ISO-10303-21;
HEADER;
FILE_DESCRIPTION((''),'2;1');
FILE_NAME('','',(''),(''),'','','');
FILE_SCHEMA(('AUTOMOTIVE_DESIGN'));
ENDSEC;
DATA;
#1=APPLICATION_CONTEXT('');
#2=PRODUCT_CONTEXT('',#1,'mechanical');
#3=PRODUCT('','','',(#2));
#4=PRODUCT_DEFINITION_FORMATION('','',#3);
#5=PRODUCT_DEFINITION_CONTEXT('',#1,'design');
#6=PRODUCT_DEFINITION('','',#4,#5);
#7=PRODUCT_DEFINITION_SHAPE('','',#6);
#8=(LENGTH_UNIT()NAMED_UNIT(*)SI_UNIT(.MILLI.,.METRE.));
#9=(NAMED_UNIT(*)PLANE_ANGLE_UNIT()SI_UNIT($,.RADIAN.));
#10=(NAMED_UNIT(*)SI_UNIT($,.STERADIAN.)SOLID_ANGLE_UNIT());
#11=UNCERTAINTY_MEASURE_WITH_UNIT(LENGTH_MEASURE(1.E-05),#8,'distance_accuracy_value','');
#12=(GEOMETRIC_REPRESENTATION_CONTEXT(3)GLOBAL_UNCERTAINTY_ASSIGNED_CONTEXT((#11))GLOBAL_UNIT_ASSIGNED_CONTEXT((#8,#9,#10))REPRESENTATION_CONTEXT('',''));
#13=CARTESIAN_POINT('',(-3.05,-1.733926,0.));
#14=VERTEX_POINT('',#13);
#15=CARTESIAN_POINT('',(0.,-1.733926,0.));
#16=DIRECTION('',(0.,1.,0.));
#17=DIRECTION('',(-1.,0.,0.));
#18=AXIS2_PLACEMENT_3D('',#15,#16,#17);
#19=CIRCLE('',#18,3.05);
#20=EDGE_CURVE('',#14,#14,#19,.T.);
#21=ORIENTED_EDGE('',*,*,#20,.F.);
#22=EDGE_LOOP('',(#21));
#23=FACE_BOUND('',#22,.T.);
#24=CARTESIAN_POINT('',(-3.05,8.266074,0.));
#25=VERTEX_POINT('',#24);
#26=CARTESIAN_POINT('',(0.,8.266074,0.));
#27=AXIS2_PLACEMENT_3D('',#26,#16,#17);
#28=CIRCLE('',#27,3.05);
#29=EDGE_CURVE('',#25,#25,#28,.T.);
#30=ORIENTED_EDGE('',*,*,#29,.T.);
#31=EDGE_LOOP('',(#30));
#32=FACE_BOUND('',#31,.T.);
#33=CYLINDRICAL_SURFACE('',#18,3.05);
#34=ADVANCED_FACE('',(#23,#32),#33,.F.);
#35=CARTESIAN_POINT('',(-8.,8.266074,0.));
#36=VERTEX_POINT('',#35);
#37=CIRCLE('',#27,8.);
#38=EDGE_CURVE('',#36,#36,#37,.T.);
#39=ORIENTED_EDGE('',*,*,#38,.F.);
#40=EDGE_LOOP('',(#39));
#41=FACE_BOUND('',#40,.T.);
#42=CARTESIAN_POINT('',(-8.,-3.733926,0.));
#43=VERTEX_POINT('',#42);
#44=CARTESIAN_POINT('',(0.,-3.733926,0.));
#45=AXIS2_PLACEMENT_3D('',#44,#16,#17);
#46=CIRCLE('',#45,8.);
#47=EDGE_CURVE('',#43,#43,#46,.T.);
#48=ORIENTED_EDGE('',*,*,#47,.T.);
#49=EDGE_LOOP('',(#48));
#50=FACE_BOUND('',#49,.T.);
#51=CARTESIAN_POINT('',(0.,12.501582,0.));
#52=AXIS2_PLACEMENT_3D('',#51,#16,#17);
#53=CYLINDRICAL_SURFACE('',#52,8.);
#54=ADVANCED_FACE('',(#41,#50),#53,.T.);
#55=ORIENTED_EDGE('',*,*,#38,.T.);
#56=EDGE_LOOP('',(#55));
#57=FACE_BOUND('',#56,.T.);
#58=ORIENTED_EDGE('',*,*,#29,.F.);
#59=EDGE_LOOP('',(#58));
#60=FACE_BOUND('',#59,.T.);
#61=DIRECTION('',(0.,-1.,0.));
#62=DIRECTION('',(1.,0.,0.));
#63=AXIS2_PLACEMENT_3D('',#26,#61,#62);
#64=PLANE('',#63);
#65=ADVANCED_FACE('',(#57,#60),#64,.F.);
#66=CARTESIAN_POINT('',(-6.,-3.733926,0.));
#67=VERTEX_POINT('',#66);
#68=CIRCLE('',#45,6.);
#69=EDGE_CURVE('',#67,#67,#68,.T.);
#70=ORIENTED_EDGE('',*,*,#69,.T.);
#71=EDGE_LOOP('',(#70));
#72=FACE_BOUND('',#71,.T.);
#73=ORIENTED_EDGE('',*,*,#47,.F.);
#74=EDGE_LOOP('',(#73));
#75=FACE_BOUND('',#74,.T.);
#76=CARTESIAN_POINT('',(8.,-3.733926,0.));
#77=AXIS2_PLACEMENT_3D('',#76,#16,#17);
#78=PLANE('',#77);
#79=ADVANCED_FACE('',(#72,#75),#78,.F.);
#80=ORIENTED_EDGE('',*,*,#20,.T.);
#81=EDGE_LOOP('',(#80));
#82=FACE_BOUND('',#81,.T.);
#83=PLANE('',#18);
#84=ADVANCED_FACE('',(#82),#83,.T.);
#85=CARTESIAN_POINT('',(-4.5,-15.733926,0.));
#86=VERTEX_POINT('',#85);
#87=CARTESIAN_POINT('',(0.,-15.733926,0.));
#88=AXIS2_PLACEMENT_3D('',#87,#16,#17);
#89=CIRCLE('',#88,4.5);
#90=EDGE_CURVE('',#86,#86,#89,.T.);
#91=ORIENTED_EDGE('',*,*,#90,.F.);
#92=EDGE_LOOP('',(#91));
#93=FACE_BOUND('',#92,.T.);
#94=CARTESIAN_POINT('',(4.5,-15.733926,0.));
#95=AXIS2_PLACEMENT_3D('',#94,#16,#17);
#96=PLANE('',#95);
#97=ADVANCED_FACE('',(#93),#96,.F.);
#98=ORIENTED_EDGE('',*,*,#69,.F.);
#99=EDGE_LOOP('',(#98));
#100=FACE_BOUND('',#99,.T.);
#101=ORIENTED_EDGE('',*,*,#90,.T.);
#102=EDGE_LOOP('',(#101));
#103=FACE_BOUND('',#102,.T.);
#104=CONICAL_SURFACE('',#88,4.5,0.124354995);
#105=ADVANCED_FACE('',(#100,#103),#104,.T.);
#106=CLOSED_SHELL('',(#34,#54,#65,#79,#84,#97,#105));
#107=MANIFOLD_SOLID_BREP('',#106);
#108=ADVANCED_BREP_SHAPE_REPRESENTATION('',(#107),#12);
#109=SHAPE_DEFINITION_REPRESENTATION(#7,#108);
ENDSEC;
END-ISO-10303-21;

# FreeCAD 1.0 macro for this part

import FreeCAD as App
import Part
import Sketcher
from FreeCAD import Vector

doc = App.newDocument("Part")
body = doc.addObject("PartDesign::Body", "Body")

sketch1 = body.newObject("Sketcher::SketchObject", "Sketch")
sketch1.AttachmentSupport = (doc.getObject("XY_Plane"), [""])
sketch1.MapMode = "FlatFace"
sketch1.addGeometry([
    Part.LineSegment(Vector(8, 8.3, 0), Vector(0, 8.3, 0)),
    Part.LineSegment(Vector(0, 8.3, 0), Vector(0, -15.7, 0)),
    Part.LineSegment(Vector(0, -15.7, 0), Vector(4.5, -15.7, 0)),
    Part.LineSegment(Vector(4.5, -15.7, 0), Vector(6, -3.7, 0)),
    Part.LineSegment(Vector(6, -3.7, 0), Vector(8, -3.7, 0)),
    Part.LineSegment(Vector(8, -3.7, 0), Vector(8, 8.3, 0)),
], False)
sketch1.addConstraint([
    Sketcher.Constraint("Coincident", 0, 2, 1, 1),
    Sketcher.Constraint("Coincident", 1, 2, 2, 1),
    Sketcher.Constraint("Coincident", 2, 2, 3, 1),
    Sketcher.Constraint("Coincident", 3, 2, 4, 1),
    Sketcher.Constraint("Coincident", 4, 2, 5, 1),
    Sketcher.Constraint("Coincident", 5, 2, 0, 1),
    Sketcher.Constraint("Horizontal", 0),
    Sketcher.Constraint("Vertical", 1),
    Sketcher.Constraint("Horizontal", 2),
    Sketcher.Constraint("Horizontal", 4),
    Sketcher.Constraint("Vertical", 5),
    Sketcher.Constraint("PointOnObject", 0, 2, -2),
    Sketcher.Constraint("DistanceX", 0, 2, 0, 1, 8.0),
    Sketcher.Constraint("DistanceX", 4, 1, 4, 2, 2.0),
    Sketcher.Constraint("DistanceY", 1, 2, 1, 1, 24.0),
    Sketcher.Constraint("DistanceY", 5, 1, 5, 2, 12.0),
    Sketcher.Constraint("DistanceX", 2, 1, 2, 2, 4.5),
    Sketcher.Constraint("DistanceY", -1, 1, 0, 2, 8.266074),
])
revolution = body.newObject("PartDesign::Revolution", "Revolution")
revolution.Profile = sketch1
revolution.ReferenceAxis = (sketch1, ["V_Axis"])
revolution.Angle = 360

sketch2 = body.newObject("Sketcher::SketchObject", "Sketch001")
sketch2.AttachmentSupport = (doc.getObject("XZ_Plane"), [""])
sketch2.MapMode = "FlatFace"
sketch2.AttachmentOffset = App.Placement(Vector(0, 0, -8.266074), App.Rotation())
sketch2.addGeometry(Part.Circle(Vector(0, 0, 0), Vector(0, 0, 1), 3), False)
sketch2.addConstraint([
    Sketcher.Constraint("Coincident", 0, 3, -1, 1),
    Sketcher.Constraint("Diameter", 0, 6.1),
])
pocket1 = body.newObject("PartDesign::Pocket", "Pocket")
pocket1.Profile = sketch2
pocket1.Length = 10
pocket1.Reversed = True

doc.recompute()
